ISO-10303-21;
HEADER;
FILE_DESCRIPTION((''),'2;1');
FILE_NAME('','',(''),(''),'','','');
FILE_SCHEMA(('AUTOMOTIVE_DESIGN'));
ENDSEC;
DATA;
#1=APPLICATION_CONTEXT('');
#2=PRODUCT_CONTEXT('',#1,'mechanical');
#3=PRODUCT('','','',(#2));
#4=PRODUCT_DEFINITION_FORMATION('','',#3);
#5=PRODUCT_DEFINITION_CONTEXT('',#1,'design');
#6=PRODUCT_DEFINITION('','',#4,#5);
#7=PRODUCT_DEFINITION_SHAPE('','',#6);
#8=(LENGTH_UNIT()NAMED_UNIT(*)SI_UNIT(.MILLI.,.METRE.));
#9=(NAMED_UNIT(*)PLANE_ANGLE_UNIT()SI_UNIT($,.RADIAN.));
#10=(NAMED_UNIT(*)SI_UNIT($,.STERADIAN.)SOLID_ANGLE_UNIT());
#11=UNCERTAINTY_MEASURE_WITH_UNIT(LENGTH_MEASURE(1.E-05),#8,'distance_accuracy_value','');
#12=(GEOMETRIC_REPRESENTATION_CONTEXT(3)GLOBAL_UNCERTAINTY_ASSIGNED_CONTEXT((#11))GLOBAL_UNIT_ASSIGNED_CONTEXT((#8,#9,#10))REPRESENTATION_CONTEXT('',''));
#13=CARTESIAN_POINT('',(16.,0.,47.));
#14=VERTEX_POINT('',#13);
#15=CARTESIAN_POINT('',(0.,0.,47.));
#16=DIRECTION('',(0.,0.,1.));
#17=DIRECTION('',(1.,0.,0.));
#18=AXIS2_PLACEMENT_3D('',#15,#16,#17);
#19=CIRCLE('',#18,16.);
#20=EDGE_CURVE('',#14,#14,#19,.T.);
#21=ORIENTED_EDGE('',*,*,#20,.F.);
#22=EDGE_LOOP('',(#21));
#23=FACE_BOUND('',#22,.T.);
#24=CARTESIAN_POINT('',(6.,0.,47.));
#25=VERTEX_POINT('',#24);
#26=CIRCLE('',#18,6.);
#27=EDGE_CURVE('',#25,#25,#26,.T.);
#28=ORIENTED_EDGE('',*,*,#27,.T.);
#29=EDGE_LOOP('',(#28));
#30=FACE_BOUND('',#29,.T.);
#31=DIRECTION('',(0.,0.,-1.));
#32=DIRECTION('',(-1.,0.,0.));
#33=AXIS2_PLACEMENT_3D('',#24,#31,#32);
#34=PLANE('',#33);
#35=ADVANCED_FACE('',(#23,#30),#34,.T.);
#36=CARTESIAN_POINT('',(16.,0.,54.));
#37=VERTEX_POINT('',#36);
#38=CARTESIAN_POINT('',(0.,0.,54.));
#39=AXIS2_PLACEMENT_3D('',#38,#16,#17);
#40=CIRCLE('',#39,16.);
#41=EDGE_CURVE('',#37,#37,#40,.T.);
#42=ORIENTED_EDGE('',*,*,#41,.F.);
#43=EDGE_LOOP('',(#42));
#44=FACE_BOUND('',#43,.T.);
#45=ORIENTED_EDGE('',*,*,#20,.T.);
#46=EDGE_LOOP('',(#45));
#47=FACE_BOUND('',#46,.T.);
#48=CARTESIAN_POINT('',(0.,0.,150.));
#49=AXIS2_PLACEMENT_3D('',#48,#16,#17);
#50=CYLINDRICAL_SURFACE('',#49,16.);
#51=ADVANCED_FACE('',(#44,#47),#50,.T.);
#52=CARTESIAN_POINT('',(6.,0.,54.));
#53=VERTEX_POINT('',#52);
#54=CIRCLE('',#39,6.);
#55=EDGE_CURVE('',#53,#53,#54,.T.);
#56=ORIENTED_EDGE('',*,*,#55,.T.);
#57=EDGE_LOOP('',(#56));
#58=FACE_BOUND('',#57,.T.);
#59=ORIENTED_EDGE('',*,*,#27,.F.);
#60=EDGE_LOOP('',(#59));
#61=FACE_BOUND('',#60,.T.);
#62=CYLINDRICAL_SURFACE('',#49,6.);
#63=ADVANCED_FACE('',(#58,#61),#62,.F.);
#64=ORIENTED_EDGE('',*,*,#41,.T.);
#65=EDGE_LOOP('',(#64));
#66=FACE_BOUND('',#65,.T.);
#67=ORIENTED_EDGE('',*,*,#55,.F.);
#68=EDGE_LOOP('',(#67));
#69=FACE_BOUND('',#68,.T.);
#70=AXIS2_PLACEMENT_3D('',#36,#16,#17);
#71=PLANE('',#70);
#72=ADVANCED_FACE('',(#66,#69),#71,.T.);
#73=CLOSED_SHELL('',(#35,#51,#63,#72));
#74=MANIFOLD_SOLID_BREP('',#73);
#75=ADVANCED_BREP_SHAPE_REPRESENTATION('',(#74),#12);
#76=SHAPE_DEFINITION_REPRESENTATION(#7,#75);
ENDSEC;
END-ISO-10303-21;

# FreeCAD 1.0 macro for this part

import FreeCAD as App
import Part
import Sketcher
from FreeCAD import Vector
Q = App.Units.Quantity


def add_polygon(sketch, points):
    """Adds a closed chain of lines whose ends are joined by coincident constraints."""
    first, n = sketch.GeometryCount, len(points)
    for a, b in zip(points, points[1:] + points[:1]):
        sketch.addGeometry(Part.LineSegment(App.Vector(*a, 0), App.Vector(*b, 0)), False)
    for i in range(n):
        sketch.addConstraint(Sketcher.Constraint("Coincident", first + i, 2, first + (i + 1) % n, 1))

doc = App.newDocument("Part")
body = doc.addObject("PartDesign::Body", "Body")

sketch1 = body.newObject("Sketcher::SketchObject", "Sketch")
sketch1.AttachmentSupport = (doc.getObject("XZ_Plane"), [""])
sketch1.MapMode = "FlatFace"
add_polygon(sketch1, [(6, 47), (6, 54), (16, 54), (16, 47)])
sketch1.addConstraint([
    Sketcher.Constraint("Vertical", 0),
    Sketcher.Constraint("Horizontal", 1),
    Sketcher.Constraint("Vertical", 2),
    Sketcher.Constraint("Horizontal", 3),
    Sketcher.Constraint("DistanceX", 1, 1, 1, 2, Q("10 mm")),
    Sketcher.Constraint("DistanceY", 0, 1, 0, 2, Q("7 mm")),
    Sketcher.Constraint("DistanceX", -1, 1, 0, 2, Q("6 mm")),
    Sketcher.Constraint("DistanceY", -1, 1, 0, 2, Q("54 mm")),
])
revolution = body.newObject("PartDesign::Revolution", "Revolution")
revolution.Profile = sketch1
revolution.ReferenceAxis = (sketch1, ["V_Axis"])
revolution.Angle = 360

doc.recompute()
